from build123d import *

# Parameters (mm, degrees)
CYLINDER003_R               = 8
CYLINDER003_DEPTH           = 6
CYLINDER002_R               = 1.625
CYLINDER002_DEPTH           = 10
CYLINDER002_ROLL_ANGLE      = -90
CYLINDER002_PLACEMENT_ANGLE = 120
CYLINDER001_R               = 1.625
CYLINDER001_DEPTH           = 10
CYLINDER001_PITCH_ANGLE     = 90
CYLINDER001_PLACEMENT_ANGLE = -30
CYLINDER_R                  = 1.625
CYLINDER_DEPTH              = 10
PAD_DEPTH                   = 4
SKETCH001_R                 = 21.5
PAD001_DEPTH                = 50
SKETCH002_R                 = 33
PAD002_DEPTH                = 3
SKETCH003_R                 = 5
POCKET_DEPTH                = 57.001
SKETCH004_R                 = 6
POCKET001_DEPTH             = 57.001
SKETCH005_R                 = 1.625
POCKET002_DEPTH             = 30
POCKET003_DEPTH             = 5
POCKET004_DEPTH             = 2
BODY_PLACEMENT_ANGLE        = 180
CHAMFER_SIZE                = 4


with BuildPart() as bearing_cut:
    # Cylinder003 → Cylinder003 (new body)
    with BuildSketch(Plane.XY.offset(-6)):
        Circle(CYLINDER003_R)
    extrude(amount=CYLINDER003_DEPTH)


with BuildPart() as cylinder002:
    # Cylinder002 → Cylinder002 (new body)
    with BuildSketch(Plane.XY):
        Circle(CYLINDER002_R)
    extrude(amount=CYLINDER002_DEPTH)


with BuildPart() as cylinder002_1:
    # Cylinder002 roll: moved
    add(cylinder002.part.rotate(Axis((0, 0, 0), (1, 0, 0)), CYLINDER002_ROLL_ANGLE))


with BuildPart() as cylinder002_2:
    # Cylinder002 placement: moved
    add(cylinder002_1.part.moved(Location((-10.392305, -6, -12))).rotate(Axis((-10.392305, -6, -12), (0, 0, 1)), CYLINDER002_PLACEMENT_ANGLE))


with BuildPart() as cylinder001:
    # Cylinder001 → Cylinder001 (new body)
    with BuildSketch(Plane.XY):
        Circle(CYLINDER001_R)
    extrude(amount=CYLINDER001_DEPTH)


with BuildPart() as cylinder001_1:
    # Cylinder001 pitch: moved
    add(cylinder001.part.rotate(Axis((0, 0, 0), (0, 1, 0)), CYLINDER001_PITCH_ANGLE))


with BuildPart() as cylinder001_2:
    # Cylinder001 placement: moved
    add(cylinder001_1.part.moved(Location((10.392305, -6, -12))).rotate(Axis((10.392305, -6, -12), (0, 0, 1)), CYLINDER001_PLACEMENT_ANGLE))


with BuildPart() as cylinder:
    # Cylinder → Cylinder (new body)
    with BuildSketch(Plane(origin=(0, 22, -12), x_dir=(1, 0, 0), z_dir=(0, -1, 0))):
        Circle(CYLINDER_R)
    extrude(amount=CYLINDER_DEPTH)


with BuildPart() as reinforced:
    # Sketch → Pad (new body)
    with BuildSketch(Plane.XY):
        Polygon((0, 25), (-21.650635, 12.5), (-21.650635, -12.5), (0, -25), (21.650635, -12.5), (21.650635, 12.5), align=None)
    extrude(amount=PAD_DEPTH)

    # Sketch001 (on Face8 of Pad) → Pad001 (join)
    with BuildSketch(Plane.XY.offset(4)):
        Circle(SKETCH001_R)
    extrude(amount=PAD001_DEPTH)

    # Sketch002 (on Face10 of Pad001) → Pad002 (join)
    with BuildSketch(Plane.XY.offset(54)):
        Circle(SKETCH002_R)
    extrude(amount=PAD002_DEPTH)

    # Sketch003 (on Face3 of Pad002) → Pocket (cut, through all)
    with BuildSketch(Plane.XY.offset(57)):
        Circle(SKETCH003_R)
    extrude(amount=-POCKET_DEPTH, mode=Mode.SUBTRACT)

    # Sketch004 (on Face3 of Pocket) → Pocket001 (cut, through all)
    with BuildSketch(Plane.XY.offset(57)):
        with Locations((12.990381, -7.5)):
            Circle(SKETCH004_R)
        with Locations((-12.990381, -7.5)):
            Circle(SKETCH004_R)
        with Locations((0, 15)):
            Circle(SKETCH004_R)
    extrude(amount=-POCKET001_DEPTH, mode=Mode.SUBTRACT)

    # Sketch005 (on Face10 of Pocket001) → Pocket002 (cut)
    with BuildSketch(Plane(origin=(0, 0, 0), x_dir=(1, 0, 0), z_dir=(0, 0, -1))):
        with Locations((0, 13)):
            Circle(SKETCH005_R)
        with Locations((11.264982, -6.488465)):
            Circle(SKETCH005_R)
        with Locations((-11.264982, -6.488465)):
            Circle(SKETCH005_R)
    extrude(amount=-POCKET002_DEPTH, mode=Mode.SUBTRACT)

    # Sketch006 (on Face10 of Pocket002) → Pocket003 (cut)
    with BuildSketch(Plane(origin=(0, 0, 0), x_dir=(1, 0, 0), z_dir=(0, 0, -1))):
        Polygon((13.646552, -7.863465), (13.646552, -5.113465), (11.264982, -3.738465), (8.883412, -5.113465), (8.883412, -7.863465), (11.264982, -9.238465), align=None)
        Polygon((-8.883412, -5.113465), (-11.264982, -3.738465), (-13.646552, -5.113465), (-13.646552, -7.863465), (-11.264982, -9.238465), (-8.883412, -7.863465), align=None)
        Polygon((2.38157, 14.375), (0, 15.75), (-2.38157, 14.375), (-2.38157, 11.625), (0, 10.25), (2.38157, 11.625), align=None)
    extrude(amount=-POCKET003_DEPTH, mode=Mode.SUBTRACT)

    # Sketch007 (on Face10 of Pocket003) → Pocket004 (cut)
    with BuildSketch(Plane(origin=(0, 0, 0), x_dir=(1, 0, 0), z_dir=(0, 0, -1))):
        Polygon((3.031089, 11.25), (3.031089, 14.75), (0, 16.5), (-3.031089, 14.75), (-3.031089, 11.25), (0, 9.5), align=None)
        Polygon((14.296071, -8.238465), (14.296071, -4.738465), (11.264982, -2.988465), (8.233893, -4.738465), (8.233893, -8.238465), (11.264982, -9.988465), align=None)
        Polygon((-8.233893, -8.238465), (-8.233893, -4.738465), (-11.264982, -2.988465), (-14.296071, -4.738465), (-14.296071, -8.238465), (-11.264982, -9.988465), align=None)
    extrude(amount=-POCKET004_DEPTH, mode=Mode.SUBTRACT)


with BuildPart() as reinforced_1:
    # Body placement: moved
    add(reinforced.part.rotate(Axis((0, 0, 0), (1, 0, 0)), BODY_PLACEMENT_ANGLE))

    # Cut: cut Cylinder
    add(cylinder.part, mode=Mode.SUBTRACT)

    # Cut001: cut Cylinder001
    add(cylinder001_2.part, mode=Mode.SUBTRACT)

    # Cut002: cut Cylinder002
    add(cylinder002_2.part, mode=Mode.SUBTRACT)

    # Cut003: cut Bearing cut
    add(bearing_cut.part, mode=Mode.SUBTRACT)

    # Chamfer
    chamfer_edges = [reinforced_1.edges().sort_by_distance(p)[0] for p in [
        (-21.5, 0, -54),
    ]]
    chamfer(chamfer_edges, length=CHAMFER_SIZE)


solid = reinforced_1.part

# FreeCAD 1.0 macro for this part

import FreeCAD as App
import Part
import Sketcher
Q = App.Units.Quantity


def edges_at(feature, points):
    """Names of the edges that pass closest to the given points."""
    edges = feature.Shape.Edges
    near = lambda p: min(range(len(edges)), key=lambda i: edges[i].distToShape(Part.Vertex(*p))[0])
    return sorted({f"Edge{near(p) + 1}" for p in points})


def add_polygon(sketch, points):
    """Adds a closed chain of lines whose ends are joined by coincident constraints."""
    first, n = sketch.GeometryCount, len(points)
    for a, b in zip(points, points[1:] + points[:1]):
        sketch.addGeometry(Part.LineSegment(App.Vector(*a, 0), App.Vector(*b, 0)), False)
    for i in range(n):
        sketch.addConstraint(Sketcher.Constraint("Coincident", first + i, 2, first + (i + 1) % n, 1))

doc = App.newDocument("Part")
params = doc.addObject("Spreadsheet::Sheet", "Params")
for row, (alias, value) in enumerate([
    ("sketch1_diameter", "16 mm"),
    ("pad1_length", "6 mm"),
    ("sketch2_diameter", "3.25 mm"),
    ("pad2_length", "10 mm"),
    ("sketch3_diameter", "3.25 mm"),
    ("pad3_length", "10 mm"),
    ("sketch4_diameter", "3.25 mm"),
    ("pad4_length", "10 mm"),
    ("sketch5_height", "25 mm"),
    ("sketch5_length", "25 mm"),
    ("pad5_length", "4 mm"),
    ("sketch6_diameter", "43 mm"),
    ("pad6_length", "50 mm"),
    ("sketch7_diameter", "66 mm"),
    ("pad7_length", "3 mm"),
    ("sketch8_diameter", "10 mm"),
    ("sketch9_diameter", "12 mm"),
    ("sketch10_diameter", "3.25 mm"),
    ("pocket3_length", "30 mm"),
    ("sketch11_height", "2.75 mm"),
    ("pocket4_length", "5 mm"),
    ("sketch12_height", "3.5 mm"),
    ("pocket5_length", "2 mm"),
    ("chamfer_size", "4 mm"),
], start=1):
    params.set(f"A{row}", alias)
    params.set(f"B{row}", "=" + value)
    params.setAlias(f"B{row}", alias)

body = doc.addObject("PartDesign::Body", "Body")

# Sketch on XY plane
sketch1 = body.newObject("Sketcher::SketchObject", "Sketch")
sketch1.AttachmentSupport = (doc.getObject("XY_Plane"), [""])
sketch1.MapMode = "FlatFace"
sketch1.AttachmentOffset = App.Placement(App.Vector(0, 0, -6), App.Rotation())
sketch1.addGeometry(Part.Circle(App.Vector(0, 0, 0), App.Vector(0, 0, 1), 8), False)
sketch1.addConstraint([
    Sketcher.Constraint("Coincident", 0, 3, -1, 1),
    Sketcher.Constraint("Diameter", 0, Q("16 mm")),
])
sketch1.setExpression("Constraints[1]", "Params.sketch1_diameter")
pad1 = body.newObject("PartDesign::Pad", "Pad")
pad1.Profile = sketch1
pad1.setExpression("Length", "Params.pad1_length")
body2 = doc.addObject("PartDesign::Body", "Body001")

# Sketch on XY plane
sketch2 = body2.newObject("Sketcher::SketchObject", "Sketch001")
sketch2.AttachmentSupport = (doc.getObject("XY_Plane001"), [""])
sketch2.MapMode = "FlatFace"
sketch2.addGeometry(Part.Circle(App.Vector(0, 0, 0), App.Vector(0, 0, 1), 1.625), False)
sketch2.addConstraint([
    Sketcher.Constraint("Coincident", 0, 3, -1, 1),
    Sketcher.Constraint("Diameter", 0, Q("3.25 mm")),
])
sketch2.setExpression("Constraints[1]", "Params.sketch2_diameter")
pad2 = body2.newObject("PartDesign::Pad", "Pad001")
pad2.Profile = sketch2
pad2.setExpression("Length", "Params.pad2_length")
body3 = doc.addObject("PartDesign::Body", "Body002")
doc.recompute()

body2.Placement = App.Placement(App.Vector(0, 0, 0), App.Rotation(App.Vector(1, 0, 0), 270))
boolean = body3.newObject("PartDesign::Boolean", "Boolean")
boolean.Type = "Fuse"
boolean.addObjects([body2])
body4 = doc.addObject("PartDesign::Body", "Body003")
doc.recompute()

body3.Placement = App.Placement(App.Vector(-10.392305, -6, -12), App.Rotation(App.Vector(0, 0, 1), 120))
boolean2 = body4.newObject("PartDesign::Boolean", "Boolean001")
boolean2.Type = "Fuse"
boolean2.addObjects([body3])
body5 = doc.addObject("PartDesign::Body", "Body004")

# Sketch on XY plane
sketch3 = body5.newObject("Sketcher::SketchObject", "Sketch002")
sketch3.AttachmentSupport = (doc.getObject("XY_Plane004"), [""])
sketch3.MapMode = "FlatFace"
sketch3.addGeometry(Part.Circle(App.Vector(0, 0, 0), App.Vector(0, 0, 1), 1.625), False)
sketch3.addConstraint([
    Sketcher.Constraint("Coincident", 0, 3, -1, 1),
    Sketcher.Constraint("Diameter", 0, Q("3.25 mm")),
])
sketch3.setExpression("Constraints[1]", "Params.sketch3_diameter")
pad3 = body5.newObject("PartDesign::Pad", "Pad002")
pad3.Profile = sketch3
pad3.setExpression("Length", "Params.pad3_length")
body6 = doc.addObject("PartDesign::Body", "Body005")
doc.recompute()

body5.Placement = App.Placement(App.Vector(0, 0, 0), App.Rotation(App.Vector(0, 1, 0), 90))
boolean3 = body6.newObject("PartDesign::Boolean", "Boolean002")
boolean3.Type = "Fuse"
boolean3.addObjects([body5])
body7 = doc.addObject("PartDesign::Body", "Body006")
doc.recompute()

body6.Placement = App.Placement(App.Vector(10.392305, -6, -12), App.Rotation(App.Vector(0, 0, 1), 330))
boolean4 = body7.newObject("PartDesign::Boolean", "Boolean003")
boolean4.Type = "Fuse"
boolean4.addObjects([body6])
body8 = doc.addObject("PartDesign::Body", "Body007")

# Sketch on XZ plane
sketch4 = body8.newObject("Sketcher::SketchObject", "Sketch003")
sketch4.AttachmentSupport = (doc.getObject("XZ_Plane007"), [""])
sketch4.MapMode = "FlatFace"
sketch4.AttachmentOffset = App.Placement(App.Vector(0, 0, -22), App.Rotation())
sketch4.addGeometry(Part.Circle(App.Vector(0, -12, 0), App.Vector(0, 0, 1), 1.625), False)
sketch4.addConstraint([
    Sketcher.Constraint("PointOnObject", 0, 3, -2),
    Sketcher.Constraint("Diameter", 0, Q("3.25 mm")),
    Sketcher.Constraint("DistanceY", 0, 3, -1, 1, Q("12 mm")),
])
sketch4.setExpression("Constraints[1]", "Params.sketch4_diameter")
pad4 = body8.newObject("PartDesign::Pad", "Pad003")
pad4.Profile = sketch4
pad4.setExpression("Length", "Params.pad4_length")
body9 = doc.addObject("PartDesign::Body", "Body008")

# Sketch on XY plane
sketch5 = body9.newObject("Sketcher::SketchObject", "Sketch004")
sketch5.AttachmentSupport = (doc.getObject("XY_Plane008"), [""])
sketch5.MapMode = "FlatFace"
add_polygon(sketch5, [(0, 25), (-21.650635, 12.5), (-21.650635, -12.5), (0, -25), (21.650635, -12.5), (21.650635, 12.5)])  # lines 0-5
sketch5.addConstraint([
    Sketcher.Constraint("Vertical", 1),
    Sketcher.Constraint("Vertical", 4),
    Sketcher.Constraint("Symmetric", 0, 2, 3, 2, -1, 1),
    Sketcher.Constraint("Symmetric", 2, 2, 5, 2, -1, 1),
    Sketcher.Constraint("PointOnObject", 2, 2, -2),
    Sketcher.Constraint("Parallel", 2, 5),
    Sketcher.Constraint("Horizontal", 1, 2, 3, 2),
    Sketcher.Constraint("DistanceY", 1, 2, 1, 1, Q("25 mm")),
    Sketcher.Constraint("Angle", 0, Q("-150 deg")),
    Sketcher.Constraint("Distance", 0, Q("25 mm")),
])
sketch5.setExpression("Constraints[13]", "Params.sketch5_height")
sketch5.setExpression("Constraints[15]", "Params.sketch5_length")
pad5 = body9.newObject("PartDesign::Pad", "Pad004")
pad5.Profile = sketch5
pad5.setExpression("Length", "Params.pad5_length")

# Sketch on XY plane
sketch6 = body9.newObject("Sketcher::SketchObject", "Sketch005")
sketch6.AttachmentSupport = (doc.getObject("XY_Plane008"), [""])
sketch6.MapMode = "FlatFace"
sketch6.AttachmentOffset = App.Placement(App.Vector(0, 0, 4), App.Rotation())
sketch6.addGeometry(Part.Circle(App.Vector(0, 0, 0), App.Vector(0, 0, 1), 21.5), False)
sketch6.addConstraint([
    Sketcher.Constraint("Coincident", 0, 3, -1, 1),
    Sketcher.Constraint("Diameter", 0, Q("43 mm")),
])
sketch6.setExpression("Constraints[1]", "Params.sketch6_diameter")
pad6 = body9.newObject("PartDesign::Pad", "Pad005")
pad6.Profile = sketch6
pad6.setExpression("Length", "Params.pad6_length")

# Sketch on XY plane
sketch7 = body9.newObject("Sketcher::SketchObject", "Sketch006")
sketch7.AttachmentSupport = (doc.getObject("XY_Plane008"), [""])
sketch7.MapMode = "FlatFace"
sketch7.AttachmentOffset = App.Placement(App.Vector(0, 0, 54), App.Rotation())
sketch7.addGeometry(Part.Circle(App.Vector(0, 0, 0), App.Vector(0, 0, 1), 33), False)
sketch7.addConstraint([
    Sketcher.Constraint("Coincident", 0, 3, -1, 1),
    Sketcher.Constraint("Diameter", 0, Q("66 mm")),
])
sketch7.setExpression("Constraints[1]", "Params.sketch7_diameter")
pad7 = body9.newObject("PartDesign::Pad", "Pad006")
pad7.Profile = sketch7
pad7.setExpression("Length", "Params.pad7_length")

# Sketch on XY plane
sketch8 = body9.newObject("Sketcher::SketchObject", "Sketch007")
sketch8.AttachmentSupport = (doc.getObject("XY_Plane008"), [""])
sketch8.MapMode = "FlatFace"
sketch8.AttachmentOffset = App.Placement(App.Vector(0, 0, 57), App.Rotation())
sketch8.addGeometry(Part.Circle(App.Vector(0, 0, 0), App.Vector(0, 0, 1), 5), False)
sketch8.addConstraint([
    Sketcher.Constraint("Coincident", 0, 3, -1, 1),
    Sketcher.Constraint("Diameter", 0, Q("10 mm")),
])
sketch8.setExpression("Constraints[1]", "Params.sketch8_diameter")
pocket1 = body9.newObject("PartDesign::Pocket", "Pocket")
pocket1.Profile = sketch8
pocket1.Type = "ThroughAll"

# Sketch on XY plane
sketch9 = body9.newObject("Sketcher::SketchObject", "Sketch008")
sketch9.AttachmentSupport = (doc.getObject("XY_Plane008"), [""])
sketch9.MapMode = "FlatFace"
sketch9.AttachmentOffset = App.Placement(App.Vector(0, 0, 57), App.Rotation())
sketch9.addGeometry([
    Part.Circle(App.Vector(12.990381, -7.5, 0), App.Vector(0, 0, 1), 6),
    Part.Circle(App.Vector(-12.990381, -7.5, 0), App.Vector(0, 0, 1), 6),
    Part.Circle(App.Vector(0, 15, 0), App.Vector(0, 0, 1), 6),
], False)
sketch9.addConstraint([
    Sketcher.Constraint("Equal", 0, 1),
    Sketcher.Constraint("Equal", 1, 2),
    Sketcher.Constraint("Symmetric", 0, 3, 1, 3, -2),
    Sketcher.Constraint("PointOnObject", 2, 3, -2),
    Sketcher.Constraint("Diameter", 0, Q("12 mm")),
    Sketcher.Constraint("DistanceY", -1, 1, 2, 3, Q("15 mm")),
    Sketcher.Constraint("DistanceY", 0, 3, -1, 1, Q("7.5 mm")),
    Sketcher.Constraint("DistanceX", -1, 1, 0, 3, Q("12.990381 mm")),
])
sketch9.setExpression("Constraints[4]", "Params.sketch9_diameter")
pocket2 = body9.newObject("PartDesign::Pocket", "Pocket001")
pocket2.Profile = sketch9
pocket2.Type = "ThroughAll"

# Sketch on XY plane
sketch10 = body9.newObject("Sketcher::SketchObject", "Sketch009")
sketch10.AttachmentSupport = (doc.getObject("XY_Plane008"), [""])
sketch10.MapMode = "FlatFace"
sketch10.addGeometry([
    Part.Circle(App.Vector(0, -13, 0), App.Vector(0, 0, 1), 1.625),
    Part.Circle(App.Vector(11.264982, 6.488465, 0), App.Vector(0, 0, 1), 1.625),
    Part.Circle(App.Vector(-11.264982, 6.488465, 0), App.Vector(0, 0, 1), 1.625),
], False)
sketch10.addConstraint([
    Sketcher.Constraint("Equal", 0, 1),
    Sketcher.Constraint("Equal", 1, 2),
    Sketcher.Constraint("Symmetric", 1, 3, 2, 3, -2),
    Sketcher.Constraint("PointOnObject", 0, 3, -2),
    Sketcher.Constraint("Diameter", 0, Q("3.25 mm")),
    Sketcher.Constraint("DistanceY", 0, 3, -1, 1, Q("13 mm")),
    Sketcher.Constraint("DistanceX", -1, 1, 1, 3, Q("11.264982 mm")),
    Sketcher.Constraint("DistanceY", -1, 1, 1, 3, Q("6.488465 mm")),
])
sketch10.setExpression("Constraints[4]", "Params.sketch10_diameter")
pocket3 = body9.newObject("PartDesign::Pocket", "Pocket002")
pocket3.Profile = sketch10
pocket3.setExpression("Length", "Params.pocket3_length")
pocket3.Reversed = True

# Sketch on XY plane
sketch11 = body9.newObject("Sketcher::SketchObject", "Sketch010")
sketch11.AttachmentSupport = (doc.getObject("XY_Plane008"), [""])
sketch11.MapMode = "FlatFace"
add_polygon(sketch11, [(13.646552, 7.863465), (13.646552, 5.113465), (11.264982, 3.738465), (8.883412, 5.113465), (8.883412, 7.863465), (11.264982, 9.238465)])  # lines 0-5
add_polygon(sketch11, [(-8.883412, 5.113465), (-11.264982, 3.738465), (-13.646552, 5.113465), (-13.646552, 7.863465), (-11.264982, 9.238465), (-8.883412, 7.863465)])  # lines 6-11
add_polygon(sketch11, [(2.38157, -14.375), (0, -15.75), (-2.38157, -14.375), (-2.38157, -11.625), (0, -10.25), (2.38157, -11.625)])  # lines 12-17
sketch11.addConstraint([
    Sketcher.Constraint("Vertical", 0),
    Sketcher.Constraint("Vertical", 3),
    Sketcher.Constraint("Vertical", 8),
    Sketcher.Constraint("Vertical", 11),
    Sketcher.Constraint("Vertical", 14),
    Sketcher.Constraint("Vertical", 17),
    Sketcher.Constraint("Symmetric", 1, 2, 6, 2, -2),
    Sketcher.Constraint("Symmetric", 0, 2, 7, 2, -2),
    Sketcher.Constraint("Symmetric", 4, 2, 9, 2, -2),
    Sketcher.Constraint("Symmetric", 3, 2, 10, 2, -2),
    Sketcher.Constraint("Symmetric", 14, 2, 16, 2, -2),
    Sketcher.Constraint("PointOnObject", 12, 2, -2),
    Sketcher.Constraint("PointOnObject", 15, 2, -2),
    Sketcher.Constraint("Parallel", 1, 4),
    Sketcher.Constraint("Parallel", 2, 5),
    Sketcher.Constraint("Parallel", 4, 6),
    Sketcher.Constraint("Parallel", 5, 7),
    Sketcher.Constraint("Parallel", 6, 9),
    Sketcher.Constraint("Parallel", 9, 12),
    Sketcher.Constraint("Parallel", 10, 13),
    Sketcher.Constraint("Parallel", 12, 15),
    Sketcher.Constraint("Horizontal", 0, 2, 2, 2),
    Sketcher.Constraint("Horizontal", 3, 2, 5, 2),
    Sketcher.Constraint("Equal", 11, 14),
    Sketcher.Constraint("Equal", 10, 12),
    Sketcher.Constraint("Angle", 1, Q("-150.000001 deg")),
    Sketcher.Constraint("DistanceY", 0, 2, 0, 1, Q("2.75 mm")),
    Sketcher.Constraint("DistanceY", 1, 2, 4, 2, Q("5.5 mm")),
    Sketcher.Constraint("DistanceY", 12, 2, -1, 1, Q("15.75 mm")),
    Sketcher.Constraint("DistanceX", -1, 1, 0, 2, Q("13.646552 mm")),
    Sketcher.Constraint("DistanceY", -1, 1, 0, 2, Q("5.113465 mm")),
])
sketch11.setExpression("Constraints[44]", "Params.sketch11_height")
pocket4 = body9.newObject("PartDesign::Pocket", "Pocket003")
pocket4.Profile = sketch11
pocket4.setExpression("Length", "Params.pocket4_length")
pocket4.Reversed = True

# Sketch on XY plane
sketch12 = body9.newObject("Sketcher::SketchObject", "Sketch011")
sketch12.AttachmentSupport = (doc.getObject("XY_Plane008"), [""])
sketch12.MapMode = "FlatFace"
add_polygon(sketch12, [(3.031089, -11.25), (3.031089, -14.75), (0, -16.5), (-3.031089, -14.75), (-3.031089, -11.25), (0, -9.5)])  # lines 0-5
add_polygon(sketch12, [(14.296071, 8.238465), (14.296071, 4.738465), (11.264982, 2.988465), (8.233893, 4.738465), (8.233893, 8.238465), (11.264982, 9.988465)])  # lines 6-11
add_polygon(sketch12, [(-8.233893, 8.238465), (-8.233893, 4.738465), (-11.264982, 2.988465), (-14.296071, 4.738465), (-14.296071, 8.238465), (-11.264982, 9.988465)])  # lines 12-17
sketch12.addConstraint([
    Sketcher.Constraint("Vertical", 0),
    Sketcher.Constraint("Vertical", 3),
    Sketcher.Constraint("Vertical", 6),
    Sketcher.Constraint("Vertical", 9),
    Sketcher.Constraint("Vertical", 12),
    Sketcher.Constraint("Vertical", 15),
    Sketcher.Constraint("Symmetric", 0, 2, 2, 2, -2),
    Sketcher.Constraint("Symmetric", 8, 2, 12, 2, -2),
    Sketcher.Constraint("Symmetric", 7, 2, 13, 2, -2),
    Sketcher.Constraint("Symmetric", 6, 2, 14, 2, -2),
    Sketcher.Constraint("Symmetric", 10, 2, 16, 2, -2),
    Sketcher.Constraint("PointOnObject", 1, 2, -2),
    Sketcher.Constraint("PointOnObject", 4, 2, -2),
    Sketcher.Constraint("Parallel", 1, 4),
    Sketcher.Constraint("Parallel", 2, 5),
    Sketcher.Constraint("Parallel", 4, 7),
    Sketcher.Constraint("Parallel", 5, 8),
    Sketcher.Constraint("Parallel", 7, 10),
    Sketcher.Constraint("Parallel", 8, 11),
    Sketcher.Constraint("Parallel", 13, 16),
    Sketcher.Constraint("Parallel", 14, 17),
    Sketcher.Constraint("Horizontal", 6, 2, 8, 2),
    Sketcher.Constraint("Horizontal", 9, 2, 11, 2),
    Sketcher.Constraint("Equal", 3, 6),
    Sketcher.Constraint("Equal", 5, 7),
    Sketcher.Constraint("Angle", 1, Q("-150.000001 deg")),
    Sketcher.Constraint("DistanceY", 0, 2, 0, 1, Q("3.5 mm")),
    Sketcher.Constraint("DistanceY", 1, 2, 4, 2, Q("7 mm")),
    Sketcher.Constraint("DistanceY", 1, 2, -1, 1, Q("16.5 mm")),
    Sketcher.Constraint("DistanceX", -1, 1, 6, 2, Q("14.296071 mm")),
    Sketcher.Constraint("DistanceY", -1, 1, 6, 2, Q("4.738465 mm")),
])
sketch12.setExpression("Constraints[44]", "Params.sketch12_height")
pocket5 = body9.newObject("PartDesign::Pocket", "Pocket004")
pocket5.Profile = sketch12
pocket5.setExpression("Length", "Params.pocket5_length")
pocket5.Reversed = True
body10 = doc.addObject("PartDesign::Body", "Body009")
doc.recompute()

body9.Placement = App.Placement(App.Vector(0, 0, 0), App.Rotation(App.Vector(1, 0, 0), 180))
boolean5 = body10.newObject("PartDesign::Boolean", "Boolean004")
boolean5.Type = "Fuse"
boolean5.addObjects([body9])
doc.recompute()

boolean6 = body10.newObject("PartDesign::Boolean", "Boolean005")
boolean6.Type = "Cut"
boolean6.addObjects([body8])
doc.recompute()

boolean7 = body10.newObject("PartDesign::Boolean", "Boolean006")
boolean7.Type = "Cut"
boolean7.addObjects([body7])
doc.recompute()

boolean8 = body10.newObject("PartDesign::Boolean", "Boolean007")
boolean8.Type = "Cut"
boolean8.addObjects([body4])
doc.recompute()

boolean9 = body10.newObject("PartDesign::Boolean", "Boolean008")
boolean9.Type = "Cut"
boolean9.addObjects([body])
doc.recompute()

chamfer = body10.newObject("PartDesign::Chamfer", "Chamfer")
chamfer.Base = (boolean9, edges_at(boolean9, [(-21.5, 0, -54)]))
chamfer.setExpression("Size", "Params.chamfer_size")

doc.recompute()
